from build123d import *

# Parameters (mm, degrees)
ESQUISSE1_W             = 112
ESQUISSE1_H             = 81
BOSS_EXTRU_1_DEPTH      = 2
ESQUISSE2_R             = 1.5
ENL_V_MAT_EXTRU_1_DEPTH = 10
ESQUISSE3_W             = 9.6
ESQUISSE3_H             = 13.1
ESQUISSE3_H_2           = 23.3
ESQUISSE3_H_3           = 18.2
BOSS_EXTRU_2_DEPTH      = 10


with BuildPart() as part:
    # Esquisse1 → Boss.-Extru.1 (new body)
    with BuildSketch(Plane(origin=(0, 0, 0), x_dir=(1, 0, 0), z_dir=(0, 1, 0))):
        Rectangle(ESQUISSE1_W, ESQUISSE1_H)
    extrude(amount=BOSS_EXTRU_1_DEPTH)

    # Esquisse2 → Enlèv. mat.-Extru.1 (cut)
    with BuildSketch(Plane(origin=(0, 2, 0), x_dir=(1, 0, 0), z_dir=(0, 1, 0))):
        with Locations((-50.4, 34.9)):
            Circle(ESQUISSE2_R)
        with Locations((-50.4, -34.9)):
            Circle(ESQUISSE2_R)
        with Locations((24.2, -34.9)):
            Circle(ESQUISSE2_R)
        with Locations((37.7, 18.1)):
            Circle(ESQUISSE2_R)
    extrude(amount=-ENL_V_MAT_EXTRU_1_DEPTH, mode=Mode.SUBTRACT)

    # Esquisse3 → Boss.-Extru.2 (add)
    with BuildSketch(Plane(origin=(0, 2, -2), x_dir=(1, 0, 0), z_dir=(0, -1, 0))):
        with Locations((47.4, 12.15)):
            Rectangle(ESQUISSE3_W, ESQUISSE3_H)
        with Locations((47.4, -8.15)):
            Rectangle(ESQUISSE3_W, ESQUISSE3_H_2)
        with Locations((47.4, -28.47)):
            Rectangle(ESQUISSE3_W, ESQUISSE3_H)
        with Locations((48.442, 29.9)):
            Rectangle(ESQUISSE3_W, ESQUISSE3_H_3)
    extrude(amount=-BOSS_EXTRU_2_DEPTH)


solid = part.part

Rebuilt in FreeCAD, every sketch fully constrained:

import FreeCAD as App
import Part
import Sketcher
from FreeCAD import Vector


def add_polygon(sketch, points):
    """Adds a closed chain of lines whose ends are joined by coincident constraints."""
    first, n = sketch.GeometryCount, len(points)
    for a, b in zip(points, points[1:] + points[:1]):
        sketch.addGeometry(Part.LineSegment(App.Vector(*a, 0), App.Vector(*b, 0)), False)
    for i in range(n):
        sketch.addConstraint(Sketcher.Constraint("Coincident", first + i, 2, first + (i + 1) % n, 1))

doc = App.newDocument("Part")
body = doc.addObject("PartDesign::Body", "Body")

sketch1 = body.newObject("Sketcher::SketchObject", "Sketch")
sketch1.AttachmentSupport = (doc.getObject("XZ_Plane"), [""])
sketch1.MapMode = "FlatFace"
add_polygon(sketch1, [(-56, -40.5), (-56, 40.5), (56, 40.5), (56, -40.5)])
sketch1.addConstraint([
    Sketcher.Constraint("Vertical", 0),
    Sketcher.Constraint("Horizontal", 1),
    Sketcher.Constraint("Vertical", 2),
    Sketcher.Constraint("Horizontal", 3),
    Sketcher.Constraint("Symmetric", 0, 2, 2, 2, -1, 1),
    Sketcher.Constraint("DistanceX", 1, 1, 1, 2, 112.0),
    Sketcher.Constraint("DistanceY", 0, 1, 0, 2, 81.0),
])
pad1 = body.newObject("PartDesign::Pad", "Pad")
pad1.Profile = sketch1
pad1.Length = 2
pad1.Reversed = True

sketch2 = body.newObject("Sketcher::SketchObject", "Sketch001")
sketch2.AttachmentSupport = (doc.getObject("XZ_Plane"), [""])
sketch2.MapMode = "FlatFace"
sketch2.AttachmentOffset = App.Placement(Vector(0, 0, -2), App.Rotation())
sketch2.addGeometry([
    Part.Circle(Vector(-50.4, -34.9, 0), Vector(0, 0, 1), 1.5),
    Part.Circle(Vector(-50.4, 34.9, 0), Vector(0, 0, 1), 1.5),
    Part.Circle(Vector(24.2, 34.9, 0), Vector(0, 0, 1), 1.5),
    Part.Circle(Vector(37.7, -18.1, 0), Vector(0, 0, 1), 1.5),
], False)
sketch2.addConstraint([
    Sketcher.Constraint("Equal", 0, 1),
    Sketcher.Constraint("Equal", 1, 2),
    Sketcher.Constraint("Equal", 2, 3),
    Sketcher.Constraint("Symmetric", 0, 3, 1, 3, -1),
    Sketcher.Constraint("Horizontal", 1, 3, 2, 3),
    Sketcher.Constraint("Diameter", 0, 3.0),
    Sketcher.Constraint("DistanceY", 3, 3, 2, 3, 53.0),
    Sketcher.Constraint("DistanceX", 0, 3, -1, 1, 50.4),
    Sketcher.Constraint("DistanceY", 0, 3, -1, 1, 34.9),
    Sketcher.Constraint("DistanceX", -1, 1, 2, 3, 24.2),
    Sketcher.Constraint("DistanceX", -1, 1, 3, 3, 37.7),
])
pocket1 = body.newObject("PartDesign::Pocket", "Pocket")
pocket1.Profile = sketch2
pocket1.Length = 10
pocket1.Reversed = True

sketch3 = body.newObject("Sketcher::SketchObject", "Sketch002")
sketch3.AttachmentSupport = (doc.getObject("XZ_Plane"), [""])
sketch3.MapMode = "FlatFace"
sketch3.AttachmentOffset = App.Placement(Vector(0, 0, -2), App.Rotation())
add_polygon(sketch3, [(42.6, 16.7), (42.6, 3.6), (52.2, 3.6), (52.2, 16.7)])
add_polygon(sketch3, [(42.6, 1.5), (42.6, -21.8), (52.2, -21.8), (52.2, 1.5)])
add_polygon(sketch3, [(42.6, -23.92), (42.6, -37.02), (52.2, -37.02), (52.2, -23.92)])
add_polygon(sketch3, [(43.642, 37), (43.642, 18.8), (53.242, 18.8), (53.242, 37)])
sketch3.addConstraint([
    Sketcher.Constraint("Vertical", 0),
    Sketcher.Constraint("Horizontal", 1),
    Sketcher.Constraint("Vertical", 2),
    Sketcher.Constraint("Horizontal", 3),
    Sketcher.Constraint("Vertical", 4),
    Sketcher.Constraint("Horizontal", 5),
    Sketcher.Constraint("Vertical", 6),
    Sketcher.Constraint("Horizontal", 7),
    Sketcher.Constraint("Vertical", 8),
    Sketcher.Constraint("Horizontal", 9),
    Sketcher.Constraint("Vertical", 10),
    Sketcher.Constraint("Horizontal", 11),
    Sketcher.Constraint("Vertical", 12),
    Sketcher.Constraint("Horizontal", 13),
    Sketcher.Constraint("Vertical", 14),
    Sketcher.Constraint("Horizontal", 15),
    Sketcher.Constraint("Vertical", 3, 2, 4, 2),
    Sketcher.Constraint("Vertical", 2, 2, 5, 2),
    Sketcher.Constraint("Vertical", 7, 2, 8, 2),
    Sketcher.Constraint("Vertical", 6, 2, 9, 2),
    Sketcher.Constraint("Equal", 11, 13),
    Sketcher.Constraint("Equal", 2, 8),
    Sketcher.Constraint("DistanceX", 1, 1, 1, 2, 9.6),
    Sketcher.Constraint("DistanceY", 0, 2, 0, 1, 13.1),
    Sketcher.Constraint("DistanceY", 4, 2, 4, 1, 23.3),
    Sketcher.Constraint("DistanceY", 12, 2, 12, 1, 18.2),
    Sketcher.Constraint("DistanceY", -1, 1, 14, 2, 37.0),
    Sketcher.Constraint("DistanceX", -1, 1, 0, 2, 42.6),
    Sketcher.Constraint("DistanceY", -1, 1, 0, 2, 3.6),
    Sketcher.Constraint("DistanceY", 4, 2, -1, 1, 21.8),
    Sketcher.Constraint("DistanceY", 8, 2, -1, 1, 37.02),
    Sketcher.Constraint("DistanceX", -1, 1, 12, 2, 43.642),
])
pad2 = body.newObject("PartDesign::Pad", "Pad001")
pad2.Profile = sketch3
pad2.Length = 10
pad2.Reversed = True

doc.recompute()
